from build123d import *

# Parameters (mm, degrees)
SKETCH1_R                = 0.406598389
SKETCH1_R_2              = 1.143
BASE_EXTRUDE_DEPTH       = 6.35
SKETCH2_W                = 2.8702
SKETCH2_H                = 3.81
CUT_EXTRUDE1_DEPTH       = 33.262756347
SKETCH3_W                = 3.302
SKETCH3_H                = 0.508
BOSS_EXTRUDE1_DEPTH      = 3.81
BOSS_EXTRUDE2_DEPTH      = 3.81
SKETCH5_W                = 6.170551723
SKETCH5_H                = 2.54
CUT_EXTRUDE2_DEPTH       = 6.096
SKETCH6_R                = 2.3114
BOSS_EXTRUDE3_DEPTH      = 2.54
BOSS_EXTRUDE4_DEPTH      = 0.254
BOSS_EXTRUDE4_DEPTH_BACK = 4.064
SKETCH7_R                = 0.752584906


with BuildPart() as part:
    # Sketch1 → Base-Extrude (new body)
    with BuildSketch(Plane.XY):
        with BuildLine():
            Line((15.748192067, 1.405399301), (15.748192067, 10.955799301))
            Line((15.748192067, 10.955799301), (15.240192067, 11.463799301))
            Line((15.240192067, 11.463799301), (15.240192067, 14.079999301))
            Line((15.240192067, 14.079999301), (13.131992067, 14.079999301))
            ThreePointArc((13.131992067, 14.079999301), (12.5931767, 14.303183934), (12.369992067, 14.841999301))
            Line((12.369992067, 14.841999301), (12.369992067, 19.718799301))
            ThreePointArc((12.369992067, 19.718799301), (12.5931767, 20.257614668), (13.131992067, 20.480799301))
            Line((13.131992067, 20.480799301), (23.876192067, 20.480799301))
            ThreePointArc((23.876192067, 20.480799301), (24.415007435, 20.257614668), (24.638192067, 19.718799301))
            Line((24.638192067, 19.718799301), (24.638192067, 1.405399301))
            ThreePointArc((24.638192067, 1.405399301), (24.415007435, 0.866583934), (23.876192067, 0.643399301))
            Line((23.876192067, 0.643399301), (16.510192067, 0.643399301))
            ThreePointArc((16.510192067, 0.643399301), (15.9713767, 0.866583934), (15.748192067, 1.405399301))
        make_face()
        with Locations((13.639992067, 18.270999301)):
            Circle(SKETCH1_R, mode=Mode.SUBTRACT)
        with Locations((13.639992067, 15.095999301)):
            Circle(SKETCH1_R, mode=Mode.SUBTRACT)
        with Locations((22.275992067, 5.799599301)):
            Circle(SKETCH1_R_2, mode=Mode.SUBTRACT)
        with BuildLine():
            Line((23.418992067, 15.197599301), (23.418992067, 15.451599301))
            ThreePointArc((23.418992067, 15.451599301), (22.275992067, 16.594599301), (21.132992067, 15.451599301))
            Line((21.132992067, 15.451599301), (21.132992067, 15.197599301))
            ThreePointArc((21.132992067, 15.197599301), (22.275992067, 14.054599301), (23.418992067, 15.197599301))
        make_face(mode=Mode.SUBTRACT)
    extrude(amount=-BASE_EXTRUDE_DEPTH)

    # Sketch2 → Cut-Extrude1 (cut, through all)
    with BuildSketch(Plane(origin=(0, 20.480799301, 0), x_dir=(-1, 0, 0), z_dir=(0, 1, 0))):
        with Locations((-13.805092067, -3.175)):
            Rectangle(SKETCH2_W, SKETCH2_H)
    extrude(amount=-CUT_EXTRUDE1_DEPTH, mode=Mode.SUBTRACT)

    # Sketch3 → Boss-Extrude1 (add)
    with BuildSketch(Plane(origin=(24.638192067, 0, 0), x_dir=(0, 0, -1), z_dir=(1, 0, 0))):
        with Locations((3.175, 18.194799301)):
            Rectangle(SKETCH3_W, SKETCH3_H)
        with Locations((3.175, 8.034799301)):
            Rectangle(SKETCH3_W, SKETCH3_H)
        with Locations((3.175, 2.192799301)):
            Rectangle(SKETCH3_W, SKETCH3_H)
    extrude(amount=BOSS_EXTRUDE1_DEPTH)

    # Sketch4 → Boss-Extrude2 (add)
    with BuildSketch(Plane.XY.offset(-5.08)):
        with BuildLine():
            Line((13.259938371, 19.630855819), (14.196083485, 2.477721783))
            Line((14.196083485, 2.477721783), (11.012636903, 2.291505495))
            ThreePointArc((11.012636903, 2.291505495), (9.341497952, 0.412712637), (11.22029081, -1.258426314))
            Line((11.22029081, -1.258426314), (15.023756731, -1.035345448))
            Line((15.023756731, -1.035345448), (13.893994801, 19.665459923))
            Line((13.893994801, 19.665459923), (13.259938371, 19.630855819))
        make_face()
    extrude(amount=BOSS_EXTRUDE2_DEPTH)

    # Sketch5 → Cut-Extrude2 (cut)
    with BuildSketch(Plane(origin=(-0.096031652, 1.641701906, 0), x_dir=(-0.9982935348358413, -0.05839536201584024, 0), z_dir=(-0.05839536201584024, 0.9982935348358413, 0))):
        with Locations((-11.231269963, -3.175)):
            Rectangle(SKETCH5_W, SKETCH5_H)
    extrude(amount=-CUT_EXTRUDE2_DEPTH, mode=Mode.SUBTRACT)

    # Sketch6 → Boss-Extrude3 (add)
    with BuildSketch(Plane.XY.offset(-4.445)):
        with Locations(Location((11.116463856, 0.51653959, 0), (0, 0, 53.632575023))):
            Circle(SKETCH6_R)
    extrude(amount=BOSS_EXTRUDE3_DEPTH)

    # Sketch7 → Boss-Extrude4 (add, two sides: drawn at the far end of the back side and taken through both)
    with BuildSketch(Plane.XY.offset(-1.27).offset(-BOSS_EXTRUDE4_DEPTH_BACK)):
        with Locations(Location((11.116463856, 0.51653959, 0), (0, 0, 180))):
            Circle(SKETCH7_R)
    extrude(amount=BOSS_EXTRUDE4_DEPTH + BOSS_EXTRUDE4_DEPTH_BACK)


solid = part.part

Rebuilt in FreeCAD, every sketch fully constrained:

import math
import FreeCAD as App
import Part
import Sketcher
from FreeCAD import Vector
Q = App.Units.Quantity


def add_polygon(sketch, points):
    """Adds a closed chain of lines whose ends are joined by coincident constraints."""
    first, n = sketch.GeometryCount, len(points)
    for a, b in zip(points, points[1:] + points[:1]):
        sketch.addGeometry(Part.LineSegment(App.Vector(*a, 0), App.Vector(*b, 0)), False)
    for i in range(n):
        sketch.addConstraint(Sketcher.Constraint("Coincident", first + i, 2, first + (i + 1) % n, 1))

doc = App.newDocument("Part")
body = doc.addObject("PartDesign::Body", "Body")

# Sketch on XY plane
sketch1 = body.newObject("Sketcher::SketchObject", "Sketch")
sketch1.AttachmentSupport = (doc.getObject("XY_Plane"), [""])
sketch1.MapMode = "FlatFace"
sketch1.addGeometry([
    Part.LineSegment(Vector(15.75, 10.96, 0), Vector(15.75, 1.41, 0)),  # 0
    Part.ArcOfCircle(Part.Circle(Vector(16.51, 1.41, 0), Vector(0, 0, 1), 0.76), math.radians(-180), math.radians(-90)),  # 1
    Part.LineSegment(Vector(16.51, 0.64, 0), Vector(23.88, 0.64, 0)),  # 2
    Part.ArcOfCircle(Part.Circle(Vector(23.88, 1.41, 0), Vector(0, 0, 1), 0.76), math.radians(-90), math.radians(0)),  # 3
    Part.LineSegment(Vector(24.64, 1.41, 0), Vector(24.64, 19.72, 0)),  # 4
    Part.ArcOfCircle(Part.Circle(Vector(23.88, 19.72, 0), Vector(0, 0, 1), 0.76), math.radians(0), math.radians(90)),  # 5
    Part.LineSegment(Vector(23.88, 20.48, 0), Vector(13.13, 20.48, 0)),  # 6
    Part.ArcOfCircle(Part.Circle(Vector(13.13, 19.72, 0), Vector(0, 0, 1), 0.76), math.radians(90), math.radians(180)),  # 7
    Part.LineSegment(Vector(12.37, 19.72, 0), Vector(12.37, 14.84, 0)),  # 8
    Part.ArcOfCircle(Part.Circle(Vector(13.13, 14.84, 0), Vector(0, 0, 1), 0.76), math.radians(-180), math.radians(-90)),  # 9
    Part.LineSegment(Vector(13.13, 14.08, 0), Vector(15.24, 14.08, 0)),  # 10
    Part.LineSegment(Vector(15.24, 14.08, 0), Vector(15.24, 11.46, 0)),  # 11
    Part.LineSegment(Vector(15.24, 11.46, 0), Vector(15.75, 10.96, 0)),  # 12
    Part.Circle(Vector(22.28, 5.8, 0), Vector(0, 0, 1), 1.14),  # 13
    Part.ArcOfCircle(Part.Circle(Vector(22.28, 15.2, 0), Vector(0, 0, 1), 1.14), math.radians(180), math.radians(360)),  # 14
    Part.LineSegment(Vector(21.13, 15.2, 0), Vector(21.13, 15.45, 0)),  # 15
    Part.ArcOfCircle(Part.Circle(Vector(22.28, 15.45, 0), Vector(0, 0, 1), 1.14), math.radians(0), math.radians(180)),  # 16
    Part.LineSegment(Vector(23.42, 15.45, 0), Vector(23.42, 15.2, 0)),  # 17
    Part.Circle(Vector(13.64, 15.1, 0), Vector(0, 0, 1), 0.41),  # 18
    Part.Circle(Vector(13.64, 18.27, 0), Vector(0, 0, 1), 0.41),  # 19
], False)
sketch1.addConstraint([
    Sketcher.Constraint("Tangent", 0, 2, 1, 1),
    Sketcher.Constraint("Tangent", 1, 2, 2, 1),
    Sketcher.Constraint("Tangent", 2, 2, 3, 1),
    Sketcher.Constraint("Tangent", 3, 2, 4, 1),
    Sketcher.Constraint("Tangent", 4, 2, 5, 1),
    Sketcher.Constraint("Tangent", 5, 2, 6, 1),
    Sketcher.Constraint("Tangent", 6, 2, 7, 1),
    Sketcher.Constraint("Tangent", 7, 2, 8, 1),
    Sketcher.Constraint("Tangent", 8, 2, 9, 1),
    Sketcher.Constraint("Tangent", 9, 2, 10, 1),
    Sketcher.Constraint("Coincident", 10, 2, 11, 1),
    Sketcher.Constraint("Coincident", 11, 2, 12, 1),
    Sketcher.Constraint("Coincident", 12, 2, 0, 1),
    Sketcher.Constraint("Tangent", 14, 1, 15, 1),
    Sketcher.Constraint("Tangent", 15, 2, 16, 2),
    Sketcher.Constraint("Tangent", 16, 1, 17, 1),
    Sketcher.Constraint("Tangent", 17, 2, 14, 2),
    Sketcher.Constraint("Vertical", 0),
    Sketcher.Constraint("Horizontal", 2),
    Sketcher.Constraint("Vertical", 4),
    Sketcher.Constraint("Horizontal", 6),
    Sketcher.Constraint("Vertical", 8),
    Sketcher.Constraint("Horizontal", 10),
    Sketcher.Constraint("Vertical", 11),
    Sketcher.Constraint("Vertical", 15),
    Sketcher.Constraint("Vertical", 17),
    Sketcher.Constraint("Equal", 1, 3),
    Sketcher.Constraint("Equal", 3, 5),
    Sketcher.Constraint("Equal", 5, 7),
    Sketcher.Constraint("Equal", 7, 9),
    Sketcher.Constraint("Equal", 13, 14),
    Sketcher.Constraint("Equal", 18, 19),
    Sketcher.Constraint("Vertical", 13, 3, 14, 3),
    Sketcher.Constraint("Vertical", 18, 3, 19, 3),
    Sketcher.Constraint("Diameter", 13, Q("0.09 in")),
    Sketcher.Constraint("Radius", 1, Q("0.03 in")),
    Sketcher.Constraint("Angle", 12, Q("-45 deg")),
    Sketcher.Constraint("DistanceX", 2, 1, 2, 2, Q("0.29 in")),
    Sketcher.Constraint("DistanceY", 15, 1, 15, 2, Q("0.01 in")),
    Sketcher.Constraint("DistanceX", 6, 2, 6, 1, Q("0.423 in")),
    Sketcher.Constraint("DistanceX", 10, 1, 10, 2, Q("0.083 in")),
    Sketcher.Constraint("DistanceY", 0, 2, 0, 1, Q("0.376 in")),
    Sketcher.Constraint("DistanceY", 4, 1, 4, 2, Q("0.721 in")),
    Sketcher.Constraint("DistanceY", 8, 2, 8, 1, Q("0.192 in")),
    Sketcher.Constraint("DistanceX", 9, 3, 13, 3, Q("0.36 in")),
    Sketcher.Constraint("DistanceY", 13, 3, 14, 3, Q("0.37 in")),
    Sketcher.Constraint("DistanceX", 9, 3, 18, 3, Q("0.02 in")),
    Sketcher.Constraint("DistanceY", 9, 3, 18, 3, Q("0.01 in")),
    Sketcher.Constraint("DistanceY", 3, 3, 13, 3, Q("0.173 in")),
    Sketcher.Constraint("DistanceY", 19, 3, 7, 3, Q("0.057 in")),
    Sketcher.Constraint("Diameter", 18, 0.813197),
    Sketcher.Constraint("DistanceY", -1, 1, 1, 3, 1.405399),
    Sketcher.Constraint("DistanceX", -1, 1, 1, 3, 16.510192),
])
pad1 = body.newObject("PartDesign::Pad", "Pad")
pad1.Profile = sketch1
pad1.Length = Q("0.25 in")
pad1.Reversed = True

# Sketch on XZ plane
sketch2 = body.newObject("Sketcher::SketchObject", "Sketch001")
sketch2.AttachmentSupport = (doc.getObject("XZ_Plane"), [""])
sketch2.MapMode = "FlatFace"
sketch2.AttachmentOffset = App.Placement(Vector(0, 0, -20.480799), App.Rotation())
add_polygon(sketch2, [(15.2, -1.3), (15.2, -5.1), (12.4, -5.1), (12.4, -1.3)])  # lines 0-3
sketch2.addConstraint([
    Sketcher.Constraint("Vertical", 0),
    Sketcher.Constraint("Horizontal", 1),
    Sketcher.Constraint("Vertical", 2),
    Sketcher.Constraint("Horizontal", 3),
    Sketcher.Constraint("DistanceY", 0, 2, 0, 1, Q("0.15 in")),
    Sketcher.Constraint("DistanceY", 0, 2, -1, 1, Q("0.2 in")),
    Sketcher.Constraint("DistanceX", 1, 2, 1, 1, Q("0.113 in")),
    Sketcher.Constraint("DistanceX", -1, 1, 0, 2, 15.240192),
])
pocket1 = body.newObject("PartDesign::Pocket", "Pocket")
pocket1.Profile = sketch2
pocket1.Type = "ThroughAll"
pocket1.Reversed = True

# Sketch on YZ plane
sketch3 = body.newObject("Sketcher::SketchObject", "Sketch002")
sketch3.AttachmentSupport = (doc.getObject("YZ_Plane"), [""])
sketch3.MapMode = "FlatFace"
sketch3.AttachmentOffset = App.Placement(Vector(0, 0, 24.638192), App.Rotation())
add_polygon(sketch3, [(18.4, -1.5), (17.9, -1.5), (17.9, -4.8), (18.4, -4.8)])  # lines 0-3
add_polygon(sketch3, [(8.3, -1.5), (7.8, -1.5), (7.8, -4.8), (8.3, -4.8)])  # lines 4-7
add_polygon(sketch3, [(2.4, -1.5), (1.9, -1.5), (1.9, -4.8), (2.4, -4.8)])  # lines 8-11
sketch3.addConstraint([
    Sketcher.Constraint("Horizontal", 0),
    Sketcher.Constraint("Vertical", 1),
    Sketcher.Constraint("Horizontal", 2),
    Sketcher.Constraint("Vertical", 3),
    Sketcher.Constraint("Horizontal", 4),
    Sketcher.Constraint("Vertical", 5),
    Sketcher.Constraint("Horizontal", 6),
    Sketcher.Constraint("Vertical", 7),
    Sketcher.Constraint("Horizontal", 8),
    Sketcher.Constraint("Vertical", 9),
    Sketcher.Constraint("Horizontal", 10),
    Sketcher.Constraint("Vertical", 11),
    Sketcher.Constraint("Horizontal", 3, 2, 4, 2),
    Sketcher.Constraint("Horizontal", 2, 2, 5, 2),
    Sketcher.Constraint("Horizontal", 7, 2, 8, 2),
    Sketcher.Constraint("Horizontal", 6, 2, 9, 2),
    Sketcher.Constraint("Equal", 2, 4),
    Sketcher.Constraint("Equal", 6, 8),
    Sketcher.Constraint("DistanceX", 0, 2, 0, 1, Q("0.02 in")),
    Sketcher.Constraint("DistanceY", 1, 2, 1, 1, Q("0.13 in")),
    Sketcher.Constraint("DistanceX", 4, 2, 0, 2, Q("0.4 in")),
    Sketcher.Constraint("DistanceY", 0, 2, -1, 1, Q("0.06 in")),
    Sketcher.Constraint("DistanceX", 8, 2, 4, 2, Q("0.23 in")),
    Sketcher.Constraint("DistanceX", -1, 1, 0, 2, 17.940799),
])
pad2 = body.newObject("PartDesign::Pad", "Pad001")
pad2.Profile = sketch3
pad2.Length = Q("0.15 in")

# Sketch on XY plane
sketch4 = body.newObject("Sketcher::SketchObject", "Sketch003")
sketch4.AttachmentSupport = (doc.getObject("XY_Plane"), [""])
sketch4.MapMode = "FlatFace"
sketch4.AttachmentOffset = App.Placement(Vector(0, 0, -0.2 * 25.4), App.Rotation())
sketch4.addGeometry([
    Part.LineSegment(Vector(13.3, 19.6, 0), Vector(14.2, 2.5, 0)),  # 0
    Part.LineSegment(Vector(14.2, 2.5, 0), Vector(11, 2.3, 0)),  # 1
    Part.ArcOfCircle(Part.Circle(Vector(11.1, 0.5, 0), Vector(0, 0, 1), 1.8), math.radians(93), math.radians(273)),  # 2
    Part.LineSegment(Vector(11.2, -1.3, 0), Vector(15, -1, 0)),  # 3
    Part.LineSegment(Vector(15, -1, 0), Vector(13.9, 19.7, 0)),  # 4
    Part.LineSegment(Vector(13.9, 19.7, 0), Vector(13.3, 19.6, 0)),  # 5
], False)
sketch4.addConstraint([
    Sketcher.Constraint("Coincident", 0, 2, 1, 1),
    Sketcher.Constraint("Tangent", 1, 2, 2, 1),
    Sketcher.Constraint("Coincident", 2, 2, 3, 1),
    Sketcher.Constraint("Coincident", 3, 2, 4, 1),
    Sketcher.Constraint("Coincident", 4, 2, 5, 1),
    Sketcher.Constraint("Coincident", 5, 2, 0, 1),
    Sketcher.Constraint("Parallel", 0, 4),
    Sketcher.Constraint("Perpendicular", 4, 5),
    Sketcher.Constraint("Radius", 2, Q("0.07 in")),
    Sketcher.Constraint("Distance", 3, Q("0.1500001 in")),
    Sketcher.Constraint("Distance", 5, Q("0.025 in")),
    Sketcher.Constraint("DistanceX", 1, 2, 5, 2, 2.247301),
    Sketcher.Constraint("DistanceY", 3, 2, 5, 2, 20.666201),
    Sketcher.Constraint("Distance", 0, 17.17866),
    Sketcher.Constraint("Distance", 1, 3.188888),
    Sketcher.Constraint("Distance", 4, 20.731611),
    Sketcher.Constraint("DistanceY", -1, 1, 2, 3, 0.51654),
    Sketcher.Constraint("DistanceX", -1, 1, 2, 2, 11.220291),
])
pad3 = body.newObject("PartDesign::Pad", "Pad002")
pad3.Profile = sketch4
pad3.Length = Q("0.15 in")

# Sketch on an angled plane
sketch5 = body.newObject("Sketcher::SketchObject", "Sketch004")
sketch5.Placement = App.Placement(Vector(-0.096032, 1.641702, 0), App.Rotation(Vector(-0.998293535, -0.058395362, 0), Vector(0, 0, 1), Vector(-0.058395362, 0.998293535, 0), "ZXY"))
add_polygon(sketch5, [(-14.3, -1.9), (-14.3, -4.4), (-8.1, -4.4), (-8.1, -1.9)])  # lines 0-3
sketch5.addConstraint([
    Sketcher.Constraint("Vertical", 0),
    Sketcher.Constraint("Horizontal", 1),
    Sketcher.Constraint("Vertical", 2),
    Sketcher.Constraint("Horizontal", 3),
    Sketcher.Constraint("DistanceY", 0, 2, 0, 1, Q("0.1 in")),
    Sketcher.Constraint("DistanceY", 0, 2, -1, 1, Q("0.175 in")),
    Sketcher.Constraint("DistanceX", 1, 1, 1, 2, 6.170552),
    Sketcher.Constraint("DistanceX", 0, 2, -1, 1, 14.316546),
])
pocket2 = body.newObject("PartDesign::Pocket", "Pocket001")
pocket2.Profile = sketch5
pocket2.Length = Q("0.24 in")

# Sketch on XY plane
sketch6 = body.newObject("Sketcher::SketchObject", "Sketch005")
sketch6.AttachmentSupport = (doc.getObject("XY_Plane"), [""])
sketch6.MapMode = "FlatFace"
sketch6.AttachmentOffset = App.Placement(Vector(0, 0, -0.175 * 25.4), App.Rotation())
sketch6.addGeometry(Part.Circle(Vector(11.1, 0.5, 0), Vector(0, 0, 1), 2.3), False)
sketch6.addConstraint([
    Sketcher.Constraint("Diameter", 0, Q("0.182 in")),
    Sketcher.Constraint("DistanceY", -1, 1, 0, 3, 0.51654),
    Sketcher.Constraint("DistanceX", -1, 1, 0, 3, 11.116464),
])
pad4 = body.newObject("PartDesign::Pad", "Pad003")
pad4.Profile = sketch6
pad4.Length = Q("0.1 in")

# Sketch on XY plane
sketch7 = body.newObject("Sketcher::SketchObject", "Sketch006")
sketch7.AttachmentSupport = (doc.getObject("XY_Plane"), [""])
sketch7.MapMode = "FlatFace"
sketch7.AttachmentOffset = App.Placement(Vector(0, 0, -0.05 * 25.4), App.Rotation())
sketch7.addGeometry(Part.Circle(Vector(11.1, 0.5, 0), Vector(0, 0, 1), 0.8), False)
sketch7.addConstraint([
    Sketcher.Constraint("Diameter", 0, 1.50517),
    Sketcher.Constraint("DistanceY", -1, 1, 0, 3, 0.51654),
    Sketcher.Constraint("DistanceX", -1, 1, 0, 3, 11.116464),
])
pad5 = body.newObject("PartDesign::Pad", "Pad004")
pad5.Profile = sketch7
pad5.Type = "TwoLengths"
pad5.Length = Q("0.01 in")
pad5.Length2 = Q("0.16 in")

doc.recompute()
